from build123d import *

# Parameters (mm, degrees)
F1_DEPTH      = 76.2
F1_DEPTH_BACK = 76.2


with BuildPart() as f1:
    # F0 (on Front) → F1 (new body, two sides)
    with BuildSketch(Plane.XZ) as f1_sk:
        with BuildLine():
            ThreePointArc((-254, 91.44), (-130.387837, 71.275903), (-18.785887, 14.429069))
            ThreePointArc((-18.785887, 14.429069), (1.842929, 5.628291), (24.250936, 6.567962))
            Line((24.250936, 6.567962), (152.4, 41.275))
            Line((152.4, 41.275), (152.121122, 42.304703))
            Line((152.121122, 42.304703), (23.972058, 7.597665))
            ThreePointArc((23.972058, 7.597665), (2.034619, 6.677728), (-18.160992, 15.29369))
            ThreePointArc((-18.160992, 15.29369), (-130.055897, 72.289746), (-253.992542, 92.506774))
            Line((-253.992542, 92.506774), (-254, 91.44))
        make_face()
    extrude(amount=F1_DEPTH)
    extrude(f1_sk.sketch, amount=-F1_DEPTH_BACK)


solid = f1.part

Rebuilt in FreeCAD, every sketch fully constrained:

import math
import FreeCAD as App
import Part
import Sketcher
Q = App.Units.Quantity

doc = App.newDocument("Part")
body = doc.addObject("PartDesign::Body", "Body")

sketch1 = body.newObject("Sketcher::SketchObject", "Sketch")
sketch1.AttachmentSupport = (doc.getObject("XZ_Plane"), [""])
sketch1.MapMode = "FlatFace"
sketch1.addGeometry([
    Part.ArcOfCircle(Part.Circle(App.Vector(-256.8, -315, 0), App.Vector(0, 0, 1), 406.4), math.radians(54), math.radians(90)),
    Part.ArcOfCircle(Part.Circle(App.Vector(11, 55.6, 0), App.Vector(0, 0, 1), 50.8), math.radians(-126), math.radians(-75)),
    Part.LineSegment(App.Vector(24.3, 6.6, 0), App.Vector(152.4, 41.3, 0)),
    Part.LineSegment(App.Vector(152.4, 41.3, 0), App.Vector(152.1, 42.3, 0)),
    Part.LineSegment(App.Vector(152.1, 42.3, 0), App.Vector(24, 7.6, 0)),
    Part.ArcOfCircle(Part.Circle(App.Vector(11, 55.6, 0), App.Vector(0, 0, 1), 49.7), math.radians(-126), math.radians(-75)),
    Part.ArcOfCircle(Part.Circle(App.Vector(-256.8, -315, 0), App.Vector(0, 0, 1), 407.5), math.radians(54), math.radians(90)),
    Part.LineSegment(App.Vector(-254, 92.5, 0), App.Vector(-254, 91.4, 0)),
], False)
sketch1.addConstraint([
    Sketcher.Constraint("Tangent", 0, 1, 1, 1),
    Sketcher.Constraint("Tangent", 1, 2, 2, 1),
    Sketcher.Constraint("Coincident", 2, 2, 3, 1),
    Sketcher.Constraint("Coincident", 3, 2, 4, 1),
    Sketcher.Constraint("Tangent", 4, 2, 5, 2),
    Sketcher.Constraint("Tangent", 5, 1, 6, 1),
    Sketcher.Constraint("Coincident", 6, 2, 7, 1),
    Sketcher.Constraint("Coincident", 7, 2, 0, 2),
    Sketcher.Constraint("Coincident", 5, 3, 1, 3),
    Sketcher.Constraint("Perpendicular", 2, 3),
    Sketcher.Constraint("Perpendicular", 3, 4),
    Sketcher.Constraint("Equal", 3, 7),
    Sketcher.Constraint("Radius", 0, Q("15.9999999 in")),
    Sketcher.Constraint("Radius", 1, Q("2 in")),
    Sketcher.Constraint("DistanceX", -1, 1, 2, 2, Q("6 in")),
    Sketcher.Constraint("DistanceX", 7, 2, -1, 1, Q("10 in")),
    Sketcher.Constraint("Radius", 5, Q("1.9580001 in")),
    Sketcher.Constraint("DistanceY", -1, 1, 7, 2, Q("3.6 in")),
    Sketcher.Constraint("DistanceY", -1, 1, 2, 2, Q("1.625 in")),
    Sketcher.Constraint("Radius", 6, Q("407.466807 mm")),
    Sketcher.Constraint("DistanceY", 1, 2, 1, 3, Q("49.033499 mm")),
    Sketcher.Constraint("DistanceX", 6, 2, 4, 2, Q("277.9646 mm")),
    Sketcher.Constraint("DistanceX", -1, 1, 1, 3, Q("10.97103 mm")),
])
pad1 = body.newObject("PartDesign::Pad", "Pad")
pad1.Profile = sketch1
pad1.Type = "TwoLengths"
pad1.Length = Q("3 in")
pad1.Length2 = Q("3 in")

doc.recompute()
